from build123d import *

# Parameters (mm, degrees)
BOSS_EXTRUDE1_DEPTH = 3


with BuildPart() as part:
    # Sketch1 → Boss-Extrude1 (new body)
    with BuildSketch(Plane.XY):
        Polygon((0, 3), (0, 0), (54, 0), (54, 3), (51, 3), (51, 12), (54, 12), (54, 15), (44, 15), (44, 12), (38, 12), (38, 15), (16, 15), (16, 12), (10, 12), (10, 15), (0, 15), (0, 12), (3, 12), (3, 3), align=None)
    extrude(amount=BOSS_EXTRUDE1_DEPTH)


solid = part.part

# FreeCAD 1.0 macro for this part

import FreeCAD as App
import Part
import Sketcher
from FreeCAD import Vector


def add_polygon(sketch, points):
    """Adds a closed chain of lines whose ends are joined by coincident constraints."""
    first, n = sketch.GeometryCount, len(points)
    for a, b in zip(points, points[1:] + points[:1]):
        sketch.addGeometry(Part.LineSegment(App.Vector(*a, 0), App.Vector(*b, 0)), False)
    for i in range(n):
        sketch.addConstraint(Sketcher.Constraint("Coincident", first + i, 2, first + (i + 1) % n, 1))

doc = App.newDocument("Part")
params = doc.addObject("Spreadsheet::Sheet", "Params")
for row, (alias, value) in enumerate([
    ("sketch1_width", "54 mm"),
    ("sketch1_width2", "3 mm"),
    ("sketch1_width3", "10 mm"),
    ("sketch1_width4", "6 mm"),
    ("sketch1_height", "9 mm"),
    ("pad1_length", "3 mm"),
], start=1):
    params.set(f"A{row}", alias)
    params.set(f"B{row}", "=" + value)
    params.setAlias(f"B{row}", alias)

body = doc.addObject("PartDesign::Body", "Body")

# Sketch on XY plane
sketch1 = doc.addObject("Sketcher::SketchObject", "Sketch")
body.addObject(sketch1)
sketch1.AttachmentSupport = (doc.XY_Plane, [""])
sketch1.MapMode = "FlatFace"
add_polygon(sketch1, [(0, 3), (0, 0), (54, 0), (54, 3), (51, 3), (51, 12), (54, 12), (54, 15), (44, 15), (44, 12), (38, 12), (38, 15), (16, 15), (16, 12), (10, 12), (10, 15), (0, 15), (0, 12), (3, 12), (3, 3)])  # lines 0-19
sketch1.addConstraint([
    Sketcher.Constraint("Vertical", 0),
    Sketcher.Constraint("Horizontal", 1),
    Sketcher.Constraint("Vertical", 2),
    Sketcher.Constraint("Horizontal", 3),
    Sketcher.Constraint("Vertical", 4),
    Sketcher.Constraint("Horizontal", 5),
    Sketcher.Constraint("Vertical", 6),
    Sketcher.Constraint("Horizontal", 7),
    Sketcher.Constraint("Vertical", 8),
    Sketcher.Constraint("Horizontal", 9),
    Sketcher.Constraint("Vertical", 10),
    Sketcher.Constraint("Horizontal", 11),
    Sketcher.Constraint("Vertical", 12),
    Sketcher.Constraint("Horizontal", 13),
    Sketcher.Constraint("Vertical", 14),
    Sketcher.Constraint("Horizontal", 15),
    Sketcher.Constraint("Vertical", 16),
    Sketcher.Constraint("Horizontal", 17),
    Sketcher.Constraint("Vertical", 18),
    Sketcher.Constraint("Horizontal", 19),
    Sketcher.Constraint("Coincident", 0, 2, -1, 1),
    Sketcher.Constraint("PointOnObject", 15, 2, -2),
    Sketcher.Constraint("Horizontal", 5, 2, 8, 2),
    Sketcher.Constraint("Horizontal", 7, 2, 10, 2),
    Sketcher.Constraint("Horizontal", 9, 2, 12, 2),
    Sketcher.Constraint("Horizontal", 11, 2, 14, 2),
    Sketcher.Constraint("Horizontal", 13, 2, 16, 2),
    Sketcher.Constraint("Horizontal", 3, 2, 18, 2),
    Sketcher.Constraint("Vertical", 2, 2, 5, 2),
    Sketcher.Constraint("Equal", 9, 13),
    Sketcher.Constraint("Equal", 7, 15),
    Sketcher.Constraint("Equal", 5, 17),
    Sketcher.Constraint("Equal", 19, 0),
    Sketcher.Constraint("Equal", 2, 6),
    Sketcher.Constraint("DistanceX", 1, 1, 1, 2, 54.0),
    Sketcher.Constraint("DistanceX", 3, 2, 3, 1, 3.0),
    Sketcher.Constraint("DistanceX", 7, 2, 7, 1, 10.0),
    Sketcher.Constraint("DistanceX", 9, 2, 9, 1, 6.0),
    Sketcher.Constraint("DistanceY", 4, 1, 4, 2, 9.0),
])
sketch1.setExpression("Constraints[54]", "Params.sketch1_width")
sketch1.setExpression("Constraints[55]", "Params.sketch1_width2")
sketch1.setExpression("Constraints[56]", "Params.sketch1_width3")
sketch1.setExpression("Constraints[57]", "Params.sketch1_width4")
sketch1.setExpression("Constraints[58]", "Params.sketch1_height")
pad1 = doc.addObject("PartDesign::Pad", "Pad")
body.addObject(pad1)
pad1.Profile = sketch1
pad1.setExpression("Length", "Params.pad1_length")

doc.recompute()
